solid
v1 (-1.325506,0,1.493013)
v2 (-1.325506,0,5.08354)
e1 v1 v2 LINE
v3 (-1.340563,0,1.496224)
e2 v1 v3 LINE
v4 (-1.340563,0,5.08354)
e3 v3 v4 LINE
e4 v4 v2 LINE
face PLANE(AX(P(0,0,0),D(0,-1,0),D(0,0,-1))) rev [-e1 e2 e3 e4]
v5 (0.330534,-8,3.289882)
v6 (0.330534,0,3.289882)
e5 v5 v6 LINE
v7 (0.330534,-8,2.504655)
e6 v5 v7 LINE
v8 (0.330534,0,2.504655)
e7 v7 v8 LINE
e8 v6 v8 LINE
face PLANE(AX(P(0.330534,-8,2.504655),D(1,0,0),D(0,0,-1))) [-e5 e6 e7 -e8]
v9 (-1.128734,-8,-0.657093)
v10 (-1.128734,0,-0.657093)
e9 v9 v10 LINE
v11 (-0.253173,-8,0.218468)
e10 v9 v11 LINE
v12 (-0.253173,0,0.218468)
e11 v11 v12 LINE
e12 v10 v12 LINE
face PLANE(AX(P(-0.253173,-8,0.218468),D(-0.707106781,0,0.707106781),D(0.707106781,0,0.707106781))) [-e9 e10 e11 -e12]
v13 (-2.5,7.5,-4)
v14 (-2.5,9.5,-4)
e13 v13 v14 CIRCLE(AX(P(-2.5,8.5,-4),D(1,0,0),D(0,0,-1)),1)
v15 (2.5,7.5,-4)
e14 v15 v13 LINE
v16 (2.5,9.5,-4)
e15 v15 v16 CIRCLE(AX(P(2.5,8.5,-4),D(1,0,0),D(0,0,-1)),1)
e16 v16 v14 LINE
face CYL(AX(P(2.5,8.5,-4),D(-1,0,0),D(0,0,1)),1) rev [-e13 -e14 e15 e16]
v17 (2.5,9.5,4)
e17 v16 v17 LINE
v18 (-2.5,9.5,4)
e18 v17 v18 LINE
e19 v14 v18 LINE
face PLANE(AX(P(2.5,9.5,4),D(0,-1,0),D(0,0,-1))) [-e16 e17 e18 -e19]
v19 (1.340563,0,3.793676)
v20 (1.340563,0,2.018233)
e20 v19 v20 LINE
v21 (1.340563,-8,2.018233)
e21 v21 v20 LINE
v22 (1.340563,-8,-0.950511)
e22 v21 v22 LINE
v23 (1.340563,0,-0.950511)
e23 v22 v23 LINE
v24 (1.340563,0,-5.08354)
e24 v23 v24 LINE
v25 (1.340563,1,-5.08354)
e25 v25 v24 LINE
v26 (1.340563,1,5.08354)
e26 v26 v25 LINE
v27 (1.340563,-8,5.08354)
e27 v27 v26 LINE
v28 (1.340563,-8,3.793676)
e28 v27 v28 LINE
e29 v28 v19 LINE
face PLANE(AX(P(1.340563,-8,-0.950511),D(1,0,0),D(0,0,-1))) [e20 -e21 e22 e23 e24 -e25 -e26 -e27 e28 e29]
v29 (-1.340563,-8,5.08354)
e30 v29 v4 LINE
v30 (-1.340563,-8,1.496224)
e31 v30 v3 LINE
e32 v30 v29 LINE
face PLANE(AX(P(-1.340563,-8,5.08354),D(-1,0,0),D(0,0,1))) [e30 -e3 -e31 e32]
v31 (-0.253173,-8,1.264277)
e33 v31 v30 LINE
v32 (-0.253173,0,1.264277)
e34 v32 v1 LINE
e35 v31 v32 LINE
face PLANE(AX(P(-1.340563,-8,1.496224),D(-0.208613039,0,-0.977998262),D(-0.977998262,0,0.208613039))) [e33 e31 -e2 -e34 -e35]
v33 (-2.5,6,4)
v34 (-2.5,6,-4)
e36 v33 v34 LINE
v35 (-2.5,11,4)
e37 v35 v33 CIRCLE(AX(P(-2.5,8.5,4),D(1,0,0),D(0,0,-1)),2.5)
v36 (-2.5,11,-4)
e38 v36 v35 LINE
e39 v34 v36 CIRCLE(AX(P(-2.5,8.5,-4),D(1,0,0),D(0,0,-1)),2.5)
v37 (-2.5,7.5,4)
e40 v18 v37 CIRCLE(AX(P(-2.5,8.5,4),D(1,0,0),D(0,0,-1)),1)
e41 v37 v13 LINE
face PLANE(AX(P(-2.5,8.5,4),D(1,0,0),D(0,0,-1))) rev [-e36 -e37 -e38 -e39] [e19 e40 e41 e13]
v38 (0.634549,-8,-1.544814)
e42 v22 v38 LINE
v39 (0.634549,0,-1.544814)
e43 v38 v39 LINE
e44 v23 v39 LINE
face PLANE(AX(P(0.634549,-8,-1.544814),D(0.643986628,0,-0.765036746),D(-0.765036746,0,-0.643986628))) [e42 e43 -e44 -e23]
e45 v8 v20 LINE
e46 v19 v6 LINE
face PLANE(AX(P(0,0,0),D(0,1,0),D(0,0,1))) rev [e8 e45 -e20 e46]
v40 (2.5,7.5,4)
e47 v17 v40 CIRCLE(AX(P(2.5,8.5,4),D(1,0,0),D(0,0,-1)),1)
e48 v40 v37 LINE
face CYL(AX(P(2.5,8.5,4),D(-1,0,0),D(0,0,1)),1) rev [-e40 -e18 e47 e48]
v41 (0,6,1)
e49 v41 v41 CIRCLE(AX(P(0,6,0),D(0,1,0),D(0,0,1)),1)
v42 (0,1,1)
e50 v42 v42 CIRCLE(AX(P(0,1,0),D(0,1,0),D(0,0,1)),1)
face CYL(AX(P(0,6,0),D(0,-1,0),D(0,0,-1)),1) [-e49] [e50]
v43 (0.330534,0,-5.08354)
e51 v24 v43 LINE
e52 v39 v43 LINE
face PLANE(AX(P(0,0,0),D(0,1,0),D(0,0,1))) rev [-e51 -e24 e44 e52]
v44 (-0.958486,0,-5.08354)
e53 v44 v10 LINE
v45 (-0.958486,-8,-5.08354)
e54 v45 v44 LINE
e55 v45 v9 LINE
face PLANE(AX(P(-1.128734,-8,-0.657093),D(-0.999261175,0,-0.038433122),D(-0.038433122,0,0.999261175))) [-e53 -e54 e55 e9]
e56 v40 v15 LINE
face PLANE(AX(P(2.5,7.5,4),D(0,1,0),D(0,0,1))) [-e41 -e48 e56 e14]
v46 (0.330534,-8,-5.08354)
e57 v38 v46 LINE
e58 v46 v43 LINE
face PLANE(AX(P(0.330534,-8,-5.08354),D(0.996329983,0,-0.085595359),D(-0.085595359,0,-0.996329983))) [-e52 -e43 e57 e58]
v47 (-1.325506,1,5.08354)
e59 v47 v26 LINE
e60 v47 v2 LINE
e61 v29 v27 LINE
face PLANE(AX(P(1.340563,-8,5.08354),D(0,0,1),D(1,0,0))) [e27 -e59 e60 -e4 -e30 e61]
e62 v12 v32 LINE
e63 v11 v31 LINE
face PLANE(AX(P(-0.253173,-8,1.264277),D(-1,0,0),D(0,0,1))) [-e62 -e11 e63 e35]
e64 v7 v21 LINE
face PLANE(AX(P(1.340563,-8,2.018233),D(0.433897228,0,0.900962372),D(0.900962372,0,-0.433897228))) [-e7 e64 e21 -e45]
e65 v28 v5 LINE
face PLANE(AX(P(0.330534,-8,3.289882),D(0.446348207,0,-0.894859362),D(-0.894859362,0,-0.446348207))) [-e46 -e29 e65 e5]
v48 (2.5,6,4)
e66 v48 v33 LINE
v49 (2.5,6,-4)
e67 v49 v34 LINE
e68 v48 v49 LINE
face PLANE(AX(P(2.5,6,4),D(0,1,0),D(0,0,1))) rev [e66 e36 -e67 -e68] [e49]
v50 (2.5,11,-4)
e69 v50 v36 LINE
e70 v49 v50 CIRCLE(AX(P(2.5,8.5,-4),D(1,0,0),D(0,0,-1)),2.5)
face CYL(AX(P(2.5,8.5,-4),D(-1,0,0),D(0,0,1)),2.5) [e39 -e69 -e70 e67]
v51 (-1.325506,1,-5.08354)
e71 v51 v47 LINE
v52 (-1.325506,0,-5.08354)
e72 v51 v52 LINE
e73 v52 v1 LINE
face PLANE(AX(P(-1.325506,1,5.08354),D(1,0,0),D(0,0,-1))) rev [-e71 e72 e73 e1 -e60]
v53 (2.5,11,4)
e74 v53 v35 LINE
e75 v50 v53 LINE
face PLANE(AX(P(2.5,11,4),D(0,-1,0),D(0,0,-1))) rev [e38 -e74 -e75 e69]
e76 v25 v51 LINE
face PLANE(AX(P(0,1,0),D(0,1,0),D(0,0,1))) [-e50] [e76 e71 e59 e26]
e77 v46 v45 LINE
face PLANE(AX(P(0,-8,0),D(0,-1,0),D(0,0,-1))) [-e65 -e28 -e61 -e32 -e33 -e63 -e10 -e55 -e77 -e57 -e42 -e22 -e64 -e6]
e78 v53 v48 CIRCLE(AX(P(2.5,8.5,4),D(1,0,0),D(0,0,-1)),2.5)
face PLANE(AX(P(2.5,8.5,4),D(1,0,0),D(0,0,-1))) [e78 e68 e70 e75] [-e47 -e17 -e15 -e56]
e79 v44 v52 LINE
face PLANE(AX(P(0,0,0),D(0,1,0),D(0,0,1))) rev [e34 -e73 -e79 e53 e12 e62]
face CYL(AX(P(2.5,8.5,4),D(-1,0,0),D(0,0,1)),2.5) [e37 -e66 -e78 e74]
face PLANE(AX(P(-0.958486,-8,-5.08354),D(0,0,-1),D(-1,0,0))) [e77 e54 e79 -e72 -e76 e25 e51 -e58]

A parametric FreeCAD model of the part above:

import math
import FreeCAD as App
import Part
import Sketcher
from FreeCAD import Vector
Q = App.Units.Quantity

doc = App.newDocument("Part")
params = doc.addObject("Spreadsheet::Sheet", "Params")
for row, (alias, value) in enumerate([
    ("pad1_length", "8 mm"),
    ("pad2_length", "1 mm"),
    ("sketch3_diameter", "2 mm"),
    ("pad3_length", "5 mm"),
    ("sketch4_radius", "1 mm"),
    ("sketch4_radius2", "2.5 mm"),
    ("sketch4_height", "8 mm"),
    ("pad4_length", "5 mm"),
], start=1):
    params.set(f"A{row}", alias)
    params.set(f"B{row}", "=" + value)
    params.setAlias(f"B{row}", alias)

body = doc.addObject("PartDesign::Body", "Body")

sketch1 = body.newObject("Sketcher::SketchObject", "Sketch")
sketch1.AttachmentSupport = (doc.getObject("XZ_Plane"), [""])
sketch1.MapMode = "FlatFace"
sketch1.addGeometry(Part.LineSegment(Vector(-1.3, 1.5, 0), Vector(-1.3, 5.1, 0)), False)
sketch1.addGeometry(Part.LineSegment(Vector(-1.3, 5.1, 0), Vector(1.3, 5.1, 0)), False)
sketch1.addGeometry(Part.LineSegment(Vector(1.3, 5.1, 0), Vector(1.3, 3.8, 0)), False)
sketch1.addGeometry(Part.LineSegment(Vector(1.3, 3.8, 0), Vector(0.3, 3.3, 0)), False)
sketch1.addGeometry(Part.LineSegment(Vector(0.3, 3.3, 0), Vector(0.3, 2.5, 0)), False)
sketch1.addGeometry(Part.LineSegment(Vector(0.3, 2.5, 0), Vector(1.3, 2, 0)), False)
sketch1.addGeometry(Part.LineSegment(Vector(1.3, 2, 0), Vector(1.3, -1, 0)), False)
sketch1.addGeometry(Part.LineSegment(Vector(1.3, -1, 0), Vector(0.6, -1.5, 0)), False)
sketch1.addGeometry(Part.LineSegment(Vector(0.6, -1.5, 0), Vector(0.3, -5.1, 0)), False)
sketch1.addGeometry(Part.LineSegment(Vector(0.3, -5.1, 0), Vector(-1, -5.1, 0)), False)
sketch1.addGeometry(Part.LineSegment(Vector(-1, -5.1, 0), Vector(-1.1, -0.7, 0)), False)
sketch1.addGeometry(Part.LineSegment(Vector(-1.1, -0.7, 0), Vector(-0.3, 0.2, 0)), False)
sketch1.addGeometry(Part.LineSegment(Vector(-0.3, 0.2, 0), Vector(-0.3, 1.3, 0)), False)
sketch1.addGeometry(Part.LineSegment(Vector(-0.3, 1.3, 0), Vector(-1.3, 1.5, 0)), False)
sketch1.addConstraint(Sketcher.Constraint("Coincident", 0, 2, 1, 1))
sketch1.addConstraint(Sketcher.Constraint("Coincident", 1, 2, 2, 1))
sketch1.addConstraint(Sketcher.Constraint("Coincident", 2, 2, 3, 1))
sketch1.addConstraint(Sketcher.Constraint("Coincident", 3, 2, 4, 1))
sketch1.addConstraint(Sketcher.Constraint("Coincident", 4, 2, 5, 1))
sketch1.addConstraint(Sketcher.Constraint("Coincident", 5, 2, 6, 1))
sketch1.addConstraint(Sketcher.Constraint("Coincident", 6, 2, 7, 1))
sketch1.addConstraint(Sketcher.Constraint("Coincident", 7, 2, 8, 1))
sketch1.addConstraint(Sketcher.Constraint("Coincident", 8, 2, 9, 1))
sketch1.addConstraint(Sketcher.Constraint("Coincident", 9, 2, 10, 1))
sketch1.addConstraint(Sketcher.Constraint("Coincident", 10, 2, 11, 1))
sketch1.addConstraint(Sketcher.Constraint("Coincident", 11, 2, 12, 1))
sketch1.addConstraint(Sketcher.Constraint("Coincident", 12, 2, 13, 1))
sketch1.addConstraint(Sketcher.Constraint("Coincident", 13, 2, 0, 1))
sketch1.addConstraint(Sketcher.Constraint("Vertical", 0))
sketch1.addConstraint(Sketcher.Constraint("Horizontal", 1))
sketch1.addConstraint(Sketcher.Constraint("Vertical", 2))
sketch1.addConstraint(Sketcher.Constraint("Vertical", 4))
sketch1.addConstraint(Sketcher.Constraint("Vertical", 6))
sketch1.addConstraint(Sketcher.Constraint("Horizontal", 9))
sketch1.addConstraint(Sketcher.Constraint("Vertical", 12))
sketch1.addConstraint(Sketcher.Constraint("Vertical", 2, 2, 5, 2))
sketch1.addConstraint(Sketcher.Constraint("Vertical", 4, 2, 8, 2))
sketch1.addConstraint(Sketcher.Constraint("Angle", 11, Q("45 deg")))
sketch1.addConstraint(Sketcher.Constraint("Distance", 3, Q("1.128701 mm")))
sketch1.addConstraint(Sketcher.Constraint("DistanceX", 9, 2, 9, 1, Q("1.28902 mm")))
sketch1.addConstraint(Sketcher.Constraint("DistanceY", 12, 1, 12, 2, Q("1.045809 mm")))
sketch1.addConstraint(Sketcher.Constraint("Distance", 7, Q("0.92285 mm")))
sketch1.addConstraint(Sketcher.Constraint("Distance", 8, Q("3.551761 mm")))
sketch1.addConstraint(Sketcher.Constraint("Distance", 10, Q("4.42972 mm")))
sketch1.addConstraint(Sketcher.Constraint("Distance", 11, Q("1.23823 mm")))
sketch1.addConstraint(Sketcher.Constraint("DistanceX", 1, 1, 1, 2, Q("2.681126 mm")))
sketch1.addConstraint(Sketcher.Constraint("DistanceY", 0, 1, 0, 2, Q("3.587316 mm")))
sketch1.addConstraint(Sketcher.Constraint("DistanceY", 2, 2, 2, 1, Q("1.289864 mm")))
sketch1.addConstraint(Sketcher.Constraint("DistanceY", 4, 2, 4, 1, Q("0.785227 mm")))
sketch1.addConstraint(Sketcher.Constraint("DistanceY", 6, 2, 6, 1, Q("2.968744 mm")))
sketch1.addConstraint(Sketcher.Constraint("DistanceY", -1, 1, 0, 2, Q("5.08354 mm")))
sketch1.addConstraint(Sketcher.Constraint("DistanceY", 6, 2, -1, 1, Q("0.950511 mm")))
sketch1.addConstraint(Sketcher.Constraint("DistanceX", -1, 1, 7, 2, Q("0.634549 mm")))
sketch1.addConstraint(Sketcher.Constraint("DistanceY", 8, 2, -1, 1, Q("5.08354 mm")))
sketch1.addConstraint(Sketcher.Constraint("DistanceY", -1, 1, 11, 2, Q("0.218468 mm")))
sketch1.addConstraint(Sketcher.Constraint("DistanceX", 3, 2, 2, 2, Q("1.010029 mm")))
pad1 = body.newObject("PartDesign::Pad", "Pad")
pad1.Profile = sketch1
pad1.setExpression("Length", "Params.pad1_length")

sketch2 = body.newObject("Sketcher::SketchObject", "Sketch001")
sketch2.AttachmentSupport = (doc.getObject("XZ_Plane"), [""])
sketch2.MapMode = "FlatFace"
sketch2.addGeometry(Part.LineSegment(Vector(-1.3, -5.1, 0), Vector(-1.3, 5.1, 0)), False)
sketch2.addGeometry(Part.LineSegment(Vector(-1.3, 5.1, 0), Vector(1.3, 5.1, 0)), False)
sketch2.addGeometry(Part.LineSegment(Vector(1.3, 5.1, 0), Vector(1.3, -5.1, 0)), False)
sketch2.addGeometry(Part.LineSegment(Vector(1.3, -5.1, 0), Vector(-1.3, -5.1, 0)), False)
sketch2.addConstraint(Sketcher.Constraint("Coincident", 0, 2, 1, 1))
sketch2.addConstraint(Sketcher.Constraint("Coincident", 1, 2, 2, 1))
sketch2.addConstraint(Sketcher.Constraint("Coincident", 2, 2, 3, 1))
sketch2.addConstraint(Sketcher.Constraint("Coincident", 3, 2, 0, 1))
sketch2.addConstraint(Sketcher.Constraint("Vertical", 0))
sketch2.addConstraint(Sketcher.Constraint("Horizontal", 1))
sketch2.addConstraint(Sketcher.Constraint("Vertical", 2))
sketch2.addConstraint(Sketcher.Constraint("Horizontal", 3))
sketch2.addConstraint(Sketcher.Constraint("DistanceX", 1, 1, 1, 2, Q("2.666069 mm")))
sketch2.addConstraint(Sketcher.Constraint("DistanceY", 0, 1, 0, 2, Q("10.16708 mm")))
sketch2.addConstraint(Sketcher.Constraint("DistanceY", -1, 1, 0, 2, Q("5.08354 mm")))
sketch2.addConstraint(Sketcher.Constraint("DistanceX", 0, 2, -1, 1, Q("1.325506 mm")))
pad2 = body.newObject("PartDesign::Pad", "Pad001")
pad2.Profile = sketch2
pad2.setExpression("Length", "Params.pad2_length")
pad2.Reversed = True

sketch3 = body.newObject("Sketcher::SketchObject", "Sketch002")
sketch3.AttachmentSupport = (doc.getObject("XZ_Plane"), [""])
sketch3.MapMode = "FlatFace"
sketch3.AttachmentOffset = App.Placement(Vector(0, 0, -1), App.Rotation())
sketch3.addGeometry(Part.Circle(Vector(0, 0, 0), Vector(0, 0, 1), 1), False)
sketch3.addConstraint(Sketcher.Constraint("Coincident", 0, 3, -1, 1))
sketch3.addConstraint(Sketcher.Constraint("Diameter", 0, Q("2 mm")))
sketch3.setExpression("Constraints[1]", "Params.sketch3_diameter")
pad3 = body.newObject("PartDesign::Pad", "Pad002")
pad3.Profile = sketch3
pad3.setExpression("Length", "Params.pad3_length")
pad3.Reversed = True

sketch4 = body.newObject("Sketcher::SketchObject", "Sketch003")
sketch4.AttachmentSupport = (doc.getObject("YZ_Plane"), [""])
sketch4.MapMode = "FlatFace"
sketch4.addGeometry(Part.LineSegment(Vector(11, -4, 0), Vector(11, 4, 0)), False)
sketch4.addGeometry(Part.ArcOfCircle(Part.Circle(Vector(8.5, 4, 0), Vector(0, 0, 1), 2.5), math.radians(0), math.radians(180)), False)
sketch4.addGeometry(Part.LineSegment(Vector(6, 4, 0), Vector(6, -4, 0)), False)
sketch4.addGeometry(Part.ArcOfCircle(Part.Circle(Vector(8.5, -4, 0), Vector(0, 0, 1), 2.5), math.radians(180), math.radians(360)), False)
sketch4.addGeometry(Part.LineSegment(Vector(9.5, 4, 0), Vector(9.5, -4, 0)), False)
sketch4.addGeometry(Part.ArcOfCircle(Part.Circle(Vector(8.5, -4, 0), Vector(0, 0, 1), 1), math.radians(180), math.radians(360)), False)
sketch4.addGeometry(Part.LineSegment(Vector(7.5, -4, 0), Vector(7.5, 4, 0)), False)
sketch4.addGeometry(Part.ArcOfCircle(Part.Circle(Vector(8.5, 4, 0), Vector(0, 0, 1), 1), math.radians(0), math.radians(180)), False)
sketch4.addConstraint(Sketcher.Constraint("Tangent", 0, 2, 1, 1))
sketch4.addConstraint(Sketcher.Constraint("Tangent", 1, 2, 2, 1))
sketch4.addConstraint(Sketcher.Constraint("Tangent", 2, 2, 3, 1))
sketch4.addConstraint(Sketcher.Constraint("Tangent", 3, 2, 0, 1))
sketch4.addConstraint(Sketcher.Constraint("Tangent", 4, 2, 5, 2))
sketch4.addConstraint(Sketcher.Constraint("Tangent", 5, 1, 6, 1))
sketch4.addConstraint(Sketcher.Constraint("Tangent", 6, 2, 7, 2))
sketch4.addConstraint(Sketcher.Constraint("Tangent", 7, 1, 4, 1))
sketch4.addConstraint(Sketcher.Constraint("Vertical", 0))
sketch4.addConstraint(Sketcher.Constraint("Vertical", 2))
sketch4.addConstraint(Sketcher.Constraint("Vertical", 4))
sketch4.addConstraint(Sketcher.Constraint("Vertical", 6))
sketch4.addConstraint(Sketcher.Constraint("Coincident", 5, 3, 3, 3))
sketch4.addConstraint(Sketcher.Constraint("Horizontal", 7, 3, 0, 2))
sketch4.addConstraint(Sketcher.Constraint("Radius", 5, Q("1 mm")))
sketch4.addConstraint(Sketcher.Constraint("Radius", 1, Q("2.5 mm")))
sketch4.addConstraint(Sketcher.Constraint("DistanceY", 0, 1, 0, 2, Q("8 mm")))
sketch4.addConstraint(Sketcher.Constraint("DistanceY", -1, 1, 1, 3, Q("4 mm")))
sketch4.addConstraint(Sketcher.Constraint("DistanceX", -1, 1, 0, 2, Q("11 mm")))
sketch4.setExpression("Constraints[14]", "Params.sketch4_radius")
sketch4.setExpression("Constraints[15]", "Params.sketch4_radius2")
sketch4.setExpression("Constraints[16]", "Params.sketch4_height")
pad4 = body.newObject("PartDesign::Pad", "Pad003")
pad4.Profile = sketch4
pad4.setExpression("Length", "Params.pad4_length")
pad4.Midplane = True

doc.recompute()
